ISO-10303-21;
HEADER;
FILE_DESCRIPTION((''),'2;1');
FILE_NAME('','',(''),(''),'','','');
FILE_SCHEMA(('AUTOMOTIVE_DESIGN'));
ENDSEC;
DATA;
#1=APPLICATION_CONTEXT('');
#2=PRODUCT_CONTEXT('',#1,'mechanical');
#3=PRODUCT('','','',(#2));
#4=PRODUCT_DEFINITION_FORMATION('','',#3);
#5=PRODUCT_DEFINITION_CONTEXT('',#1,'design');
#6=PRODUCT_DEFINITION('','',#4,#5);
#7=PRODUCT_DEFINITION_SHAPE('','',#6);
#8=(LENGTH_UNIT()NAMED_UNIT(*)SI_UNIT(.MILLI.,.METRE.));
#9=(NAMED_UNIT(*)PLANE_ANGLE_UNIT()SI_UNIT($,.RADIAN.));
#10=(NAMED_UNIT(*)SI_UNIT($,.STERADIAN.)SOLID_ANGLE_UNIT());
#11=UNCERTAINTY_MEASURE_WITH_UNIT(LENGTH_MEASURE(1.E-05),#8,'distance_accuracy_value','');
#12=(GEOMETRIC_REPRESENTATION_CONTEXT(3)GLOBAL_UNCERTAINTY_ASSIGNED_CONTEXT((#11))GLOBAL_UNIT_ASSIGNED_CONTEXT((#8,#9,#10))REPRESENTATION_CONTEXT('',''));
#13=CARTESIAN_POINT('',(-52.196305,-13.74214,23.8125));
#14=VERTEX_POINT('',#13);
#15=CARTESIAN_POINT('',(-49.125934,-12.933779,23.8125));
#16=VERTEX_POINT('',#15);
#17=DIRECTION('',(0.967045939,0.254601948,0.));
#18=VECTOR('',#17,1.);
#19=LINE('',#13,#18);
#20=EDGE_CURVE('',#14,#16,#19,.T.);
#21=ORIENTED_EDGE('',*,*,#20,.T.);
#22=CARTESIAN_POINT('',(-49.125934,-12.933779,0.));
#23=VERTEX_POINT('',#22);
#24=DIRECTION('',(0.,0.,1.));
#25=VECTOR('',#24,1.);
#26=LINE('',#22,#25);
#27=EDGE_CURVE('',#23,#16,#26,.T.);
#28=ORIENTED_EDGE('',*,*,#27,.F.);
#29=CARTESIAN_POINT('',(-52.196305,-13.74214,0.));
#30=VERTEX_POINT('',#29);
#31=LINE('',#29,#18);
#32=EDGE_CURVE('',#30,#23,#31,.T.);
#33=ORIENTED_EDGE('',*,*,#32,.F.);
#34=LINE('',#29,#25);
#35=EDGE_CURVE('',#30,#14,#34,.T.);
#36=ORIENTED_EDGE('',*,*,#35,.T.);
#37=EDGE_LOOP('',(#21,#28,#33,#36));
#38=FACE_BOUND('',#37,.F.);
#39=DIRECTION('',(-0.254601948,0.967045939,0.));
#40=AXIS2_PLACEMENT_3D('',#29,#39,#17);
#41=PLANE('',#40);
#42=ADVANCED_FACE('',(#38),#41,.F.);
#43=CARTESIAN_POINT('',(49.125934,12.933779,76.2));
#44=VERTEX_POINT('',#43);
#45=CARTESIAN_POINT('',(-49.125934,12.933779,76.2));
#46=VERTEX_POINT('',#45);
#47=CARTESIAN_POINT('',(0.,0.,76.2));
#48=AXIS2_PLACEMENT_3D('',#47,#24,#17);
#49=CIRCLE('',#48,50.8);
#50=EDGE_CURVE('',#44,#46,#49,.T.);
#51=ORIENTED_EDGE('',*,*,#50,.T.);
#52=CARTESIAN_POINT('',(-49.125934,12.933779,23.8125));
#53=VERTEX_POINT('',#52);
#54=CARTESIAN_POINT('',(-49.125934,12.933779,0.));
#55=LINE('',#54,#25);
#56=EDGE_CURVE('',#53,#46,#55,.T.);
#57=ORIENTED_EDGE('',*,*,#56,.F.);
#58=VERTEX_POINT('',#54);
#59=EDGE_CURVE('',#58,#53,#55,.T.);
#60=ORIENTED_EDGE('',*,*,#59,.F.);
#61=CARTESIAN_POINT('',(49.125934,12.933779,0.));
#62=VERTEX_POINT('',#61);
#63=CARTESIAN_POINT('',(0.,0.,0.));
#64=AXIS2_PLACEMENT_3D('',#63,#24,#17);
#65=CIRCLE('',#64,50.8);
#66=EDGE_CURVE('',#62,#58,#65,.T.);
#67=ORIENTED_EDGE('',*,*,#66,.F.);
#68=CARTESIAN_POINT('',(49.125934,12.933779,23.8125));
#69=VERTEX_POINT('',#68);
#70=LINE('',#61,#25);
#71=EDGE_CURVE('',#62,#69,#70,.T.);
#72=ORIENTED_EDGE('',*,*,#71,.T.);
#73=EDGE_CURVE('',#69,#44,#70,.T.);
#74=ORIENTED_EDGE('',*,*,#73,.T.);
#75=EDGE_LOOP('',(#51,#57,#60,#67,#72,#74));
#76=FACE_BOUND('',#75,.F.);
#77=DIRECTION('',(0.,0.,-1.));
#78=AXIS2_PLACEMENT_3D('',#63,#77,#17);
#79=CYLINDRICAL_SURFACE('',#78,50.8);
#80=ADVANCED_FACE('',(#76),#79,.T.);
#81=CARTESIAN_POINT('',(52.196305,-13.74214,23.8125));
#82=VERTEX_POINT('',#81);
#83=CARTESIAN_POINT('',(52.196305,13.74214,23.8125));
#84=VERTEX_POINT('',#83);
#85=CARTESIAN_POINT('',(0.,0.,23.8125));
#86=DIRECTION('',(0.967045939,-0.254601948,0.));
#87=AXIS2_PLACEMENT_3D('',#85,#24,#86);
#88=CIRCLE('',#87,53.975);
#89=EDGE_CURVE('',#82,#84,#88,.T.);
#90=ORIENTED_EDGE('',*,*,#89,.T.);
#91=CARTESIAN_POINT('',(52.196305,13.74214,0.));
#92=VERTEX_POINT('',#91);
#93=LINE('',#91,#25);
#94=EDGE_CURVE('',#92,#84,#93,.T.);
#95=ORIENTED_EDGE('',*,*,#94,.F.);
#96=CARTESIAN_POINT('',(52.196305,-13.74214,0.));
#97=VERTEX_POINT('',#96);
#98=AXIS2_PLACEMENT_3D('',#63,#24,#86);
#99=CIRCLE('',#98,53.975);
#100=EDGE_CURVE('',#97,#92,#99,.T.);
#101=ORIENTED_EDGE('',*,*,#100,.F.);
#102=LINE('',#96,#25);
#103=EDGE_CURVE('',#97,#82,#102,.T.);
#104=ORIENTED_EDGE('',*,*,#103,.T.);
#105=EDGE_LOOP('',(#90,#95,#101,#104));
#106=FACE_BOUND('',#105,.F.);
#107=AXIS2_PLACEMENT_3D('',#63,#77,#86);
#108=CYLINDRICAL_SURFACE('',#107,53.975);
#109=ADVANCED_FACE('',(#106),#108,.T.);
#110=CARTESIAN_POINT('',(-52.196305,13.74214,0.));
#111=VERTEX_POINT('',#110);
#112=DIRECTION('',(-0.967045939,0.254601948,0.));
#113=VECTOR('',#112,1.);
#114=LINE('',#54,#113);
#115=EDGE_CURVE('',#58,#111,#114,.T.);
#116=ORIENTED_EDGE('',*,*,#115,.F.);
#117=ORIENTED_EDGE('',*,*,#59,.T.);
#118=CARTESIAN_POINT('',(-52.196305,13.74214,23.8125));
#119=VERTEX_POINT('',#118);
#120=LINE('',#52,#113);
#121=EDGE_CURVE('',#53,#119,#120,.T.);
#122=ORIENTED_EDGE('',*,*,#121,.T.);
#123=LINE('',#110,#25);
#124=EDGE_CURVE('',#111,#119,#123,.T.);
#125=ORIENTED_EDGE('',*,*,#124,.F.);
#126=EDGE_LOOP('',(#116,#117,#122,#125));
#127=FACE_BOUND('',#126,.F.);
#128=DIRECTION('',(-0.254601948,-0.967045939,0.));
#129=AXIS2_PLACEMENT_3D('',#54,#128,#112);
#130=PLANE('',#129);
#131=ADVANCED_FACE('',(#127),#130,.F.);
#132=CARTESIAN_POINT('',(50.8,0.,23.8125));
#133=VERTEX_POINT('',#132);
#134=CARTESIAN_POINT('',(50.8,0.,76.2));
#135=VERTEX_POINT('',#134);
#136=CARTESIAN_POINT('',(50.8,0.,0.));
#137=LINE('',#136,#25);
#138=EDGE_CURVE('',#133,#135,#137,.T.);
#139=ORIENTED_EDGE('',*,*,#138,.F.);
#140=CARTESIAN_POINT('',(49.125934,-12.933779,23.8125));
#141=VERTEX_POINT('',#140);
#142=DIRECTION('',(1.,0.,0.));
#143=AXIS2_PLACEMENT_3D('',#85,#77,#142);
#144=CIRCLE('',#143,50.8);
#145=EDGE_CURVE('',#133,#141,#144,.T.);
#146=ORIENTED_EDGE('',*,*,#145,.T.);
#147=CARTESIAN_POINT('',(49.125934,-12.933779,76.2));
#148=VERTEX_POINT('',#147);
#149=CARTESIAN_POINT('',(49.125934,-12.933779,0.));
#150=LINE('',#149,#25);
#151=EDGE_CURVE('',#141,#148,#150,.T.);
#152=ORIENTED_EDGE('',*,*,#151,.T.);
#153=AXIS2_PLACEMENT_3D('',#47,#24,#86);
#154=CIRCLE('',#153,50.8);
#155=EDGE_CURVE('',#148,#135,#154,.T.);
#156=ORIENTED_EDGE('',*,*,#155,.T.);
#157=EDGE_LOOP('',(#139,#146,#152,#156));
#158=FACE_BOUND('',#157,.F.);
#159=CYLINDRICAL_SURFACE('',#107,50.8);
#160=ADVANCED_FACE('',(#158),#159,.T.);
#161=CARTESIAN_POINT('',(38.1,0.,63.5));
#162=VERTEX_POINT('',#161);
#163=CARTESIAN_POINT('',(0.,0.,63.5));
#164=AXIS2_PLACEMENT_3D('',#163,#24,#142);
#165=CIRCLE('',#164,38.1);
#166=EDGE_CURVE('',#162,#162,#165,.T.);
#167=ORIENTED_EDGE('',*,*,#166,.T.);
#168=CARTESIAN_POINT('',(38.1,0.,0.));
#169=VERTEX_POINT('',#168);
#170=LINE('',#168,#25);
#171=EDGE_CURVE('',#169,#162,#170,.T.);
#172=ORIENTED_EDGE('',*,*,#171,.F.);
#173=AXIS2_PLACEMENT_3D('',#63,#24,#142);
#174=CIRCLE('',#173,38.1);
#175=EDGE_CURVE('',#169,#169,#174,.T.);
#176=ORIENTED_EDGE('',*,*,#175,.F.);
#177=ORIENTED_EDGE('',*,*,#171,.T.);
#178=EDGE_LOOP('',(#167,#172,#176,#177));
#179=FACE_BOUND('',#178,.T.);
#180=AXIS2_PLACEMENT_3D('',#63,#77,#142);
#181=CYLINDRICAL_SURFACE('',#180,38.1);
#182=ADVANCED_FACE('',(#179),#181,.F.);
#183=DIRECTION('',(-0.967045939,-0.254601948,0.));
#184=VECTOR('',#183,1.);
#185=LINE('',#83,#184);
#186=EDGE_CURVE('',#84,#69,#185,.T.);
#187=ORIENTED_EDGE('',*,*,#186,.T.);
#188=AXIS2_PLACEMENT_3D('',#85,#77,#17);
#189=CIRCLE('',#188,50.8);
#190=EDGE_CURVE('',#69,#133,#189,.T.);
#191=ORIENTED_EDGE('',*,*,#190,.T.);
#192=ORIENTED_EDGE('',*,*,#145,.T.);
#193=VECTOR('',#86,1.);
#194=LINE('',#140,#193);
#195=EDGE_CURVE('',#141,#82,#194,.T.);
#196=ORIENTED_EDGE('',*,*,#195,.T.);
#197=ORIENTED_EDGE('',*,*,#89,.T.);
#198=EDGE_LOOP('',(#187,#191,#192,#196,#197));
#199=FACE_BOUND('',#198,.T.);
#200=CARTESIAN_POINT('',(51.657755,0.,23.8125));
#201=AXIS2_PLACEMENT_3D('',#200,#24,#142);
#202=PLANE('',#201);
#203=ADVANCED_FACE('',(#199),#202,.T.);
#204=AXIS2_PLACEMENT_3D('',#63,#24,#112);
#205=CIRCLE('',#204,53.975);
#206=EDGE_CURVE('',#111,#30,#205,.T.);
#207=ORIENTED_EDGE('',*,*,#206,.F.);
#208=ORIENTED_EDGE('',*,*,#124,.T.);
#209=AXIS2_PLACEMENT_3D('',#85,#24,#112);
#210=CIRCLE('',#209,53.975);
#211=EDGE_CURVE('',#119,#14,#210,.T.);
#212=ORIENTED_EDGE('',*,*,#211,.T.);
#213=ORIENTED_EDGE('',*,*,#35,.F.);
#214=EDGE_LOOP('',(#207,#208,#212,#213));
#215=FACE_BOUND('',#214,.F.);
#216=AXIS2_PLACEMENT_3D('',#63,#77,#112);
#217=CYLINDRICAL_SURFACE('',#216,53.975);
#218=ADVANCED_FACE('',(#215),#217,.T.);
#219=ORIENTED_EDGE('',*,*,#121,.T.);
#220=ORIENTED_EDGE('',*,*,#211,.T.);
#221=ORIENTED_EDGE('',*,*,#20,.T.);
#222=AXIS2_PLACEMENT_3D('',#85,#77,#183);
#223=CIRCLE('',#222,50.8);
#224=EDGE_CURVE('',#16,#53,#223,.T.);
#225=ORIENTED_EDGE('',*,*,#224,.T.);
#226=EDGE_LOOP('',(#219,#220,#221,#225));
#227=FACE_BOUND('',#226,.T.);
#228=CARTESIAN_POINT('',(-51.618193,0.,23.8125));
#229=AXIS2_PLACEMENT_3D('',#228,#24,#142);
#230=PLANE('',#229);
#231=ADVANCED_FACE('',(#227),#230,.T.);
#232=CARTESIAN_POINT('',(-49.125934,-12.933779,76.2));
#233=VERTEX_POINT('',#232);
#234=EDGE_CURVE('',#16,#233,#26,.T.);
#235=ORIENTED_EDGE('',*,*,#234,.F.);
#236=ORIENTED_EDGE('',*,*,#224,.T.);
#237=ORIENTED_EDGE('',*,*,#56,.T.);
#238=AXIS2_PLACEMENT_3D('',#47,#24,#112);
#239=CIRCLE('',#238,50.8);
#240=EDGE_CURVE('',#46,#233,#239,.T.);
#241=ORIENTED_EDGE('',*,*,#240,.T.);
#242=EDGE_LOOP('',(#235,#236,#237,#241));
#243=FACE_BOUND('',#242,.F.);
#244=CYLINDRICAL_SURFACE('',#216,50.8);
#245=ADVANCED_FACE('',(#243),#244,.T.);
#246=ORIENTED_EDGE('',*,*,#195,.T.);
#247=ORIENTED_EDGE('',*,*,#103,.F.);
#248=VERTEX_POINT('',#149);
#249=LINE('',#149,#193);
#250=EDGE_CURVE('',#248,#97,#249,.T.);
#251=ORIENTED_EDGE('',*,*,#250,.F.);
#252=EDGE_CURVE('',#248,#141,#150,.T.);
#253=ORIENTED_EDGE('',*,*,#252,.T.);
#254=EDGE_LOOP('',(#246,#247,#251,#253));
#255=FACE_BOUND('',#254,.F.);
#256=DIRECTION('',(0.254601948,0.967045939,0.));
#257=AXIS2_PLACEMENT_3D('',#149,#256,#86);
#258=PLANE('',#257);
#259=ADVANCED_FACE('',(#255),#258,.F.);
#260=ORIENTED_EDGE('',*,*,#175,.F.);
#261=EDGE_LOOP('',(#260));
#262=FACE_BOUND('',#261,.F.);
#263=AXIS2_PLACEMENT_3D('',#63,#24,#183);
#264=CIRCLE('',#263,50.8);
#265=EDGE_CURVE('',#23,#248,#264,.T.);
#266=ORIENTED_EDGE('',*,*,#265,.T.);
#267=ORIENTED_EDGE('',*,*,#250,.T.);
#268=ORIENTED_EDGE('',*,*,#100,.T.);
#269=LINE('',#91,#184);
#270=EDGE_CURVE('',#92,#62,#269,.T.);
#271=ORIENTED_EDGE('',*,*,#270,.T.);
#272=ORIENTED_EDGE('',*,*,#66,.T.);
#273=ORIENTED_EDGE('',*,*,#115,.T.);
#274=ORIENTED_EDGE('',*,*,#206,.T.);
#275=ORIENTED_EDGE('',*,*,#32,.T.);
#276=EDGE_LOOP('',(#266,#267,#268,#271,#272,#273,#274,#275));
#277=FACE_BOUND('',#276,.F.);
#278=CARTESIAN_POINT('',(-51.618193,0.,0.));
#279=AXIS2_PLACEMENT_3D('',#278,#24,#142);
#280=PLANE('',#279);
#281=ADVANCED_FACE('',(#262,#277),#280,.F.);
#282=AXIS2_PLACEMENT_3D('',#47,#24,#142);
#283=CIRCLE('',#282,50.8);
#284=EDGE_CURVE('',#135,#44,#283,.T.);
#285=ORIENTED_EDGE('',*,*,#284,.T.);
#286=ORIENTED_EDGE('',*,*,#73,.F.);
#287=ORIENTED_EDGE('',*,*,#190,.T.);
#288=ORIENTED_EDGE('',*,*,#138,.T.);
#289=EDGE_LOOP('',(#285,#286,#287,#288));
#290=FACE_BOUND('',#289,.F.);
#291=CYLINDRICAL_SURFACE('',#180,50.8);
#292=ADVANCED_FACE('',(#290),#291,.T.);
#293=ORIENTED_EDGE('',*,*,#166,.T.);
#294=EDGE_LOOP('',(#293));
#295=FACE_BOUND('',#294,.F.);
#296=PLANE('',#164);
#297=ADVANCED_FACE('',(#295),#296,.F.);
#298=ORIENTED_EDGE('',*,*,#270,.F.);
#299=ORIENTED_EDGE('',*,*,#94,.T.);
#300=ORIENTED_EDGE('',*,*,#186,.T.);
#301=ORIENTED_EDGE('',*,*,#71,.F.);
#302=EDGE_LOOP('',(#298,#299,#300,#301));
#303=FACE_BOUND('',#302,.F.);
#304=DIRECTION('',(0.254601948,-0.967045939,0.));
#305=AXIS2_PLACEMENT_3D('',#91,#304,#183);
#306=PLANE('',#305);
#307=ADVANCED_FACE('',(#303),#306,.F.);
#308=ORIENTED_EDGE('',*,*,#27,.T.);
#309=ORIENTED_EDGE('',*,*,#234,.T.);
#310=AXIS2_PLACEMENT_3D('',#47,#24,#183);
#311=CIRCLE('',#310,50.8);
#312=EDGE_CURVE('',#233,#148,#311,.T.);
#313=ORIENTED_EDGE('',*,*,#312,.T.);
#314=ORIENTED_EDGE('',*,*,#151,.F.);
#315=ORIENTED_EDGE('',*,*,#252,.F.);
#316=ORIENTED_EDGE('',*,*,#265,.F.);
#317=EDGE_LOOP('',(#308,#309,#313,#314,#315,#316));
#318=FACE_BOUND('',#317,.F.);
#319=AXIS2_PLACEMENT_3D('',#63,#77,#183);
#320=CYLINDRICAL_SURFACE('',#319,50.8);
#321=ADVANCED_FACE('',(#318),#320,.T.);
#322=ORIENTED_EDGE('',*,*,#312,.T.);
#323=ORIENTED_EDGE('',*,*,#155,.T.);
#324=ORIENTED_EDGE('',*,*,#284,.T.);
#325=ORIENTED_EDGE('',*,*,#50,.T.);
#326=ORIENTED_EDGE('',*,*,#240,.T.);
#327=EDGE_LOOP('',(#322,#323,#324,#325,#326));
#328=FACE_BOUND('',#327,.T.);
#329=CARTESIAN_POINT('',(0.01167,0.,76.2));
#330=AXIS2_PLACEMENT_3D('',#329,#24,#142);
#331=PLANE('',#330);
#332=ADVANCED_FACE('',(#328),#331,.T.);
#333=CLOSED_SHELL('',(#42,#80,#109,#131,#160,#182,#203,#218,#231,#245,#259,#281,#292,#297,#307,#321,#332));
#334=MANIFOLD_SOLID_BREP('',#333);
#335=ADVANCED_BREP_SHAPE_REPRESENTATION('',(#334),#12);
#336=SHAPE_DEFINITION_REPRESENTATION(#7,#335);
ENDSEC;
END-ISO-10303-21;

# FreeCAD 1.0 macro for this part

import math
import FreeCAD as App
import Part
import Sketcher
from FreeCAD import Vector
Q = App.Units.Quantity

doc = App.newDocument("Part")
body = doc.addObject("PartDesign::Body", "Body")

# Sketch on XY plane
sketch1 = body.newObject("Sketcher::SketchObject", "Sketch")
sketch1.AttachmentSupport = (doc.getObject("XY_Plane"), [""])
sketch1.MapMode = "FlatFace"
sketch1.addGeometry([
    Part.ArcOfCircle(Part.Circle(Vector(0, 0, 0), Vector(0, 0, 1), 50.8), math.radians(-14.75), math.radians(0)),  # 0
    Part.ArcOfCircle(Part.Circle(Vector(0, 0, 0), Vector(0, 0, 1), 50.8), math.radians(0), math.radians(14.75)),  # 1
    Part.ArcOfCircle(Part.Circle(Vector(0, 0, 0), Vector(0, 0, 1), 50.8), math.radians(14.75), math.radians(165.25)),  # 2
    Part.ArcOfCircle(Part.Circle(Vector(0, 0, 0), Vector(0, 0, 1), 50.8), math.radians(165.25), math.radians(194.75)),  # 3
    Part.ArcOfCircle(Part.Circle(Vector(0, 0, 0), Vector(0, 0, 1), 50.8), math.radians(-165.25), math.radians(-14.75)),  # 4
], False)
sketch1.addConstraint([
    Sketcher.Constraint("Tangent", 0, 2, 1, 1),
    Sketcher.Constraint("Tangent", 1, 2, 2, 1),
    Sketcher.Constraint("Tangent", 2, 2, 3, 1),
    Sketcher.Constraint("Tangent", 3, 2, 4, 1),
    Sketcher.Constraint("Tangent", 4, 2, 0, 1),
    Sketcher.Constraint("Coincident", 0, 3, -1, 1),
    Sketcher.Constraint("Coincident", 2, 3, -1, 1),
    Sketcher.Constraint("PointOnObject", 0, 2, -1),
    Sketcher.Constraint("Horizontal", 1, 2, 2, 2),
    Sketcher.Constraint("Horizontal", 3, 2, 4, 2),
    Sketcher.Constraint("Vertical", 2, 2, 3, 2),
    Sketcher.Constraint("Radius", 0, Q("2 in")),
    Sketcher.Constraint("DistanceY", -1, 1, 1, 2, Q("12.933779 mm")),
])
pad1 = body.newObject("PartDesign::Pad", "Pad")
pad1.Profile = sketch1
pad1.Length = Q("3 in")

# Sketch on XY plane
sketch2 = body.newObject("Sketcher::SketchObject", "Sketch001")
sketch2.AttachmentSupport = (doc.getObject("XY_Plane"), [""])
sketch2.MapMode = "FlatFace"
sketch2.addGeometry([
    Part.ArcOfCircle(Part.Circle(Vector(0, 0, 0), Vector(0, 0, 1), 50.8), math.radians(165.25), math.radians(194.75)),  # 0
    Part.LineSegment(Vector(-49.125934, 12.933779, 0), Vector(-52.196305, 13.74214, 0)),  # 1
    Part.ArcOfCircle(Part.Circle(Vector(0, 0, 0), Vector(0, 0, 1), 53.975), math.radians(165.25), math.radians(194.75)),  # 2
    Part.LineSegment(Vector(-52.196305, -13.74214, 0), Vector(-49.125934, -12.933779, 0)),  # 3
    Part.ArcOfCircle(Part.Circle(Vector(0, 0, 0), Vector(0, 0, 1), 50.8), math.radians(0), math.radians(14.75)),  # 4
    Part.ArcOfCircle(Part.Circle(Vector(0, 0, 0), Vector(0, 0, 1), 50.8), math.radians(-14.75), math.radians(0)),  # 5
    Part.LineSegment(Vector(49.125934, -12.933779, 0), Vector(52.196305, -13.74214, 0)),  # 6
    Part.ArcOfCircle(Part.Circle(Vector(0, 0, 0), Vector(0, 0, 1), 53.975), math.radians(-14.75), math.radians(14.75)),  # 7
    Part.LineSegment(Vector(52.196305, 13.74214, 0), Vector(49.125934, 12.933779, 0)),  # 8
], False)
sketch2.addConstraint([
    Sketcher.Constraint("Coincident", 0, 1, 1, 1),
    Sketcher.Constraint("Coincident", 1, 2, 2, 1),
    Sketcher.Constraint("Coincident", 2, 2, 3, 1),
    Sketcher.Constraint("Coincident", 3, 2, 0, 2),
    Sketcher.Constraint("Tangent", 4, 1, 5, 2),
    Sketcher.Constraint("Coincident", 5, 1, 6, 1),
    Sketcher.Constraint("Coincident", 6, 2, 7, 1),
    Sketcher.Constraint("Coincident", 7, 2, 8, 1),
    Sketcher.Constraint("Coincident", 8, 2, 4, 2),
    Sketcher.Constraint("Coincident", 0, 3, -1, 1),
    Sketcher.Constraint("Coincident", 2, 3, -1, 1),
    Sketcher.Constraint("Coincident", 4, 3, -1, 1),
    Sketcher.Constraint("Coincident", 7, 3, -1, 1),
    Sketcher.Constraint("Equal", 0, 4),
    Sketcher.Constraint("Equal", 4, 5),
    Sketcher.Constraint("Equal", 2, 7),
    Sketcher.Constraint("PointOnObject", 4, 1, -1),
    Sketcher.Constraint("Parallel", 1, 6),
    Sketcher.Constraint("Parallel", 3, 8),
    Sketcher.Constraint("Horizontal", 3, 2, 5, 1),
    Sketcher.Constraint("Horizontal", 2, 2, 6, 2),
    Sketcher.Constraint("Horizontal", 1, 2, 7, 2),
    Sketcher.Constraint("Vertical", 1, 2, 2, 2),
    Sketcher.Constraint("Radius", 0, Q("2 in")),
    Sketcher.Constraint("Radius", 2, Q("2.125 in")),
    Sketcher.Constraint("Angle", 1, Q("165.25 deg")),
    Sketcher.Constraint("DistanceY", -1, 1, 0, 1, Q("12.933779 mm")),
])
pad2 = body.newObject("PartDesign::Pad", "Pad001")
pad2.Profile = sketch2
pad2.Length = Q("0.9375 in")

# Sketch on XY plane
sketch3 = body.newObject("Sketcher::SketchObject", "Sketch002")
sketch3.AttachmentSupport = (doc.getObject("XY_Plane"), [""])
sketch3.MapMode = "FlatFace"
sketch3.addGeometry(Part.Circle(Vector(0, 0, 0), Vector(0, 0, 1), 38.1), False)
sketch3.addConstraint([
    Sketcher.Constraint("Coincident", 0, 3, -1, 1),
    Sketcher.Constraint("Diameter", 0, Q("3 in")),
])
pocket1 = body.newObject("PartDesign::Pocket", "Pocket")
pocket1.Profile = sketch3
pocket1.Length = Q("2.5 in")
pocket1.Reversed = True

doc.recompute()
